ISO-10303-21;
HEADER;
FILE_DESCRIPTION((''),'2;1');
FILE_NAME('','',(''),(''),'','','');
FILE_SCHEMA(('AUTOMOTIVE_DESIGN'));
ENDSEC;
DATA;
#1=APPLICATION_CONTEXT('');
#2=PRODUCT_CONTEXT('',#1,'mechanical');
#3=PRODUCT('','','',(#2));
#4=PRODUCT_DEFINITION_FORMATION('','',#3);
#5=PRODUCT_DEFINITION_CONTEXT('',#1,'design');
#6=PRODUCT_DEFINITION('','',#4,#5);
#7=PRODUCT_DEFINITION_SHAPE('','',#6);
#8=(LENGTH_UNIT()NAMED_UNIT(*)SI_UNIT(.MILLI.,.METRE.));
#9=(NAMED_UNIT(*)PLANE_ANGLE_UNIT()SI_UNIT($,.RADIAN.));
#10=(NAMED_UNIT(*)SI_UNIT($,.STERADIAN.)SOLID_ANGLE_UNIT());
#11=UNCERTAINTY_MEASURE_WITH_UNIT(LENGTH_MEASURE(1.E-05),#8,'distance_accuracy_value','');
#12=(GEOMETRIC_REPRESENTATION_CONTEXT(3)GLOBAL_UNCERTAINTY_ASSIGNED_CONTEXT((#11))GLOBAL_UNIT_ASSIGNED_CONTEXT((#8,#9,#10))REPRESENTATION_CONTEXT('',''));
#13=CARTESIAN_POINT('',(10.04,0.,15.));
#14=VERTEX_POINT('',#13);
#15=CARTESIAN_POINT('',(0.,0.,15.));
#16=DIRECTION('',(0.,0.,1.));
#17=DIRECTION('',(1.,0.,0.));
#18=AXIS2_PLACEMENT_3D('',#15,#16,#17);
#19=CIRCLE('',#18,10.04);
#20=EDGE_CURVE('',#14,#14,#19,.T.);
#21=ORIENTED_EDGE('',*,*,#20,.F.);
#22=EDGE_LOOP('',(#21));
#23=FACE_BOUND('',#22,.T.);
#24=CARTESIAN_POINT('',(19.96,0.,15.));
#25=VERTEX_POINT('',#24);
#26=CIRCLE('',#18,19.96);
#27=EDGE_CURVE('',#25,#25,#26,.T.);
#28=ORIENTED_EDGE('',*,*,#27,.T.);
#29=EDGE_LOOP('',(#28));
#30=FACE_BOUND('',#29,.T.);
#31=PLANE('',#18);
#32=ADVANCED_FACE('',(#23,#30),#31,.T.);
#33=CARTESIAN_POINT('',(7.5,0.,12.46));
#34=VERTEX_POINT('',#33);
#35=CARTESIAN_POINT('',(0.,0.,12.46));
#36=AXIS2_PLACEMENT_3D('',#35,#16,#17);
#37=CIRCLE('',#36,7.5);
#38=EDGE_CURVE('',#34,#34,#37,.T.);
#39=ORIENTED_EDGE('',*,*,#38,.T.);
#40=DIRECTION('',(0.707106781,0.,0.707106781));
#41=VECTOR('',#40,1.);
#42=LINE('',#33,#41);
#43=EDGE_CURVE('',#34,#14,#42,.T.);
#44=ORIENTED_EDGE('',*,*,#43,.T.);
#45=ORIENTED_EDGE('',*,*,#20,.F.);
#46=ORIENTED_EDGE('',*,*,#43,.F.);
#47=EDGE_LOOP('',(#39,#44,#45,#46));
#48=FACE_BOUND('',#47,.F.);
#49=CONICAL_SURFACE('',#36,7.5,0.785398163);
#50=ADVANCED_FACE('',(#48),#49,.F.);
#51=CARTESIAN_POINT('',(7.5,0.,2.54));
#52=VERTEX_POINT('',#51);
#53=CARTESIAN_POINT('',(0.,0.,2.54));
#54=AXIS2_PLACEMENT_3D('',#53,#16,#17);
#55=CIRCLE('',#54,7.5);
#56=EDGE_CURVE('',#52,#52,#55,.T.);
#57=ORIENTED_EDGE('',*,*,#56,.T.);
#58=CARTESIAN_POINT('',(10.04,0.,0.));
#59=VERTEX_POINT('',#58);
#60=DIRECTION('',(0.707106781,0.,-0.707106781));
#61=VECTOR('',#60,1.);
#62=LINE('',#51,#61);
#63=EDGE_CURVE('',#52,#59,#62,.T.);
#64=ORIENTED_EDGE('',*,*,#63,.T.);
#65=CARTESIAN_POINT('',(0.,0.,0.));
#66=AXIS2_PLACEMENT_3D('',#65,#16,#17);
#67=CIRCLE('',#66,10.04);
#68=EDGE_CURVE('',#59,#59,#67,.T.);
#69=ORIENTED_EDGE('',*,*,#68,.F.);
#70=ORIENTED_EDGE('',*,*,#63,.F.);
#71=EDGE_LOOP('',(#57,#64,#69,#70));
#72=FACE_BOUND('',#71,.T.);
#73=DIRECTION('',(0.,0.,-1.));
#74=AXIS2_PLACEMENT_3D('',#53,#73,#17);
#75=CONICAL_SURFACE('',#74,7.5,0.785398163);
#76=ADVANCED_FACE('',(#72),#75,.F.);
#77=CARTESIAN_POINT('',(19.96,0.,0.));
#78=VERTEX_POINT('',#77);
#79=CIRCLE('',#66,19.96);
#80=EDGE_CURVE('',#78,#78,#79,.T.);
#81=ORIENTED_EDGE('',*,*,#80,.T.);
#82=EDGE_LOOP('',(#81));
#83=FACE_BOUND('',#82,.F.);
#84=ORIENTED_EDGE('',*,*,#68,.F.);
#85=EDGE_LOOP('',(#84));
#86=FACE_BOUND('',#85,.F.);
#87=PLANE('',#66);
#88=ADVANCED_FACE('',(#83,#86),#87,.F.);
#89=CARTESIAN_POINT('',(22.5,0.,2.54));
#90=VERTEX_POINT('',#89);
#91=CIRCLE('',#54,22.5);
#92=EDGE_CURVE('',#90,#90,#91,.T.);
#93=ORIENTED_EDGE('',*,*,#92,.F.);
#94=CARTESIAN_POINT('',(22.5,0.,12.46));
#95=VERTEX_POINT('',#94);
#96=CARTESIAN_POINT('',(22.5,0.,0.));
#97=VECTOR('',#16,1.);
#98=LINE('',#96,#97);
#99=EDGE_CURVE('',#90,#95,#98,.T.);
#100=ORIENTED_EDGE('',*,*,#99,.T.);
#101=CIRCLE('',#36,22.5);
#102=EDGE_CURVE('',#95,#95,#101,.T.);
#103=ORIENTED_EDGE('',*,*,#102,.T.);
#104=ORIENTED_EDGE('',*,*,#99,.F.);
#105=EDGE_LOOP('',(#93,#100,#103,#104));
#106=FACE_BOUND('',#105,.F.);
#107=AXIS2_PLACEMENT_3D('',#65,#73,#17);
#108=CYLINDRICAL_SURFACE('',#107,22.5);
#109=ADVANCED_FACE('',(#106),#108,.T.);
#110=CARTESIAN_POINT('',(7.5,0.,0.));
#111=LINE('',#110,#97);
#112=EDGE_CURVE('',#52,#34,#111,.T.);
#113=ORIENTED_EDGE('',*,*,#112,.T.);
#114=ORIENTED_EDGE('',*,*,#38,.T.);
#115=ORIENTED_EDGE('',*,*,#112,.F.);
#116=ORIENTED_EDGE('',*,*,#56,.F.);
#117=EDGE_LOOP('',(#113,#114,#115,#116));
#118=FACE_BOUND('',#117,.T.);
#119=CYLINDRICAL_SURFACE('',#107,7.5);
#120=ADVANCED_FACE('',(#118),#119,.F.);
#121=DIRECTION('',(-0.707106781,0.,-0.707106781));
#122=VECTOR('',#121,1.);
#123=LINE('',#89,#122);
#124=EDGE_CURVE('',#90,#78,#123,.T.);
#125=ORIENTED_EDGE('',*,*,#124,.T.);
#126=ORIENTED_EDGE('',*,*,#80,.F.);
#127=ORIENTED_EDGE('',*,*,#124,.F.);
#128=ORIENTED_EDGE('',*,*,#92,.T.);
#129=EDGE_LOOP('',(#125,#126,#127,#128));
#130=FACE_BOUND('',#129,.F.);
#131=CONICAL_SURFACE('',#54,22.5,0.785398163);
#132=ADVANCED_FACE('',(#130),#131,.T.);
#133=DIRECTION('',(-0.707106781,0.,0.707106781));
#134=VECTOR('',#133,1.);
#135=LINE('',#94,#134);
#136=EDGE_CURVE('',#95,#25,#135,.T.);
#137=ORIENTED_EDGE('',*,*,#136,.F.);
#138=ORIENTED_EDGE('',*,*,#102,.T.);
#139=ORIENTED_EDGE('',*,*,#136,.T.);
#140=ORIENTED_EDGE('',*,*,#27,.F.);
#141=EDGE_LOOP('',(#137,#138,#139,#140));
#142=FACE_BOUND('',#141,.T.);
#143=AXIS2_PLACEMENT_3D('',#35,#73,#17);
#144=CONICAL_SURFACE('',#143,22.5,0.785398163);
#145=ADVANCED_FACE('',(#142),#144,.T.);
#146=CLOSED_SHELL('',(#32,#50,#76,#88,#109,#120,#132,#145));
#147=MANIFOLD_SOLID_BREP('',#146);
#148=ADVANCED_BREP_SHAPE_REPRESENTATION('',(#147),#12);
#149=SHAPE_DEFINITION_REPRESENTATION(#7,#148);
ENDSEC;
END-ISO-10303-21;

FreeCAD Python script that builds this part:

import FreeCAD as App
import Part
import Sketcher


def edges_at(feature, points):
    """Names of the edges that pass closest to the given points."""
    edges = feature.Shape.Edges
    near = lambda p: min(range(len(edges)), key=lambda i: edges[i].distToShape(Part.Vertex(*p))[0])
    return sorted({f"Edge{near(p) + 1}" for p in points})

doc = App.newDocument("Part")
body = doc.addObject("PartDesign::Body", "Body")

# Sketch on XY plane
sketch1 = body.newObject("Sketcher::SketchObject", "Sketch")
sketch1.AttachmentSupport = (doc.getObject("XY_Plane"), [""])
sketch1.MapMode = "FlatFace"
sketch1.addGeometry(Part.Circle(App.Vector(0, 0, 0), App.Vector(0, 0, 1), 22.5), False)
sketch1.addGeometry(Part.Circle(App.Vector(0, 0, 0), App.Vector(0, 0, 1), 7.5), False)
sketch1.addConstraint(Sketcher.Constraint("Coincident", 0, 3, -1, 1))
sketch1.addConstraint(Sketcher.Constraint("Coincident", 1, 3, -1, 1))
sketch1.addConstraint(Sketcher.Constraint("Diameter", 0, 45.0))
sketch1.addConstraint(Sketcher.Constraint("Diameter", 1, 15.0))
pad1 = body.newObject("PartDesign::Pad", "Pad")
pad1.Profile = sketch1
pad1.Length = 15
doc.recompute()

chamfer = body.newObject("PartDesign::Chamfer", "Chamfer")
chamfer.Base = (pad1, edges_at(pad1, [
    (-22.5, 0, 15),
    (-22.5, 0, 0),
    (-7.5, 0, 15),
    (-7.5, 0, 0),
]))
chamfer.ChamferType = "Two distances"
chamfer.Size = 2.54
chamfer.Size2 = 2.54

doc.recompute()
